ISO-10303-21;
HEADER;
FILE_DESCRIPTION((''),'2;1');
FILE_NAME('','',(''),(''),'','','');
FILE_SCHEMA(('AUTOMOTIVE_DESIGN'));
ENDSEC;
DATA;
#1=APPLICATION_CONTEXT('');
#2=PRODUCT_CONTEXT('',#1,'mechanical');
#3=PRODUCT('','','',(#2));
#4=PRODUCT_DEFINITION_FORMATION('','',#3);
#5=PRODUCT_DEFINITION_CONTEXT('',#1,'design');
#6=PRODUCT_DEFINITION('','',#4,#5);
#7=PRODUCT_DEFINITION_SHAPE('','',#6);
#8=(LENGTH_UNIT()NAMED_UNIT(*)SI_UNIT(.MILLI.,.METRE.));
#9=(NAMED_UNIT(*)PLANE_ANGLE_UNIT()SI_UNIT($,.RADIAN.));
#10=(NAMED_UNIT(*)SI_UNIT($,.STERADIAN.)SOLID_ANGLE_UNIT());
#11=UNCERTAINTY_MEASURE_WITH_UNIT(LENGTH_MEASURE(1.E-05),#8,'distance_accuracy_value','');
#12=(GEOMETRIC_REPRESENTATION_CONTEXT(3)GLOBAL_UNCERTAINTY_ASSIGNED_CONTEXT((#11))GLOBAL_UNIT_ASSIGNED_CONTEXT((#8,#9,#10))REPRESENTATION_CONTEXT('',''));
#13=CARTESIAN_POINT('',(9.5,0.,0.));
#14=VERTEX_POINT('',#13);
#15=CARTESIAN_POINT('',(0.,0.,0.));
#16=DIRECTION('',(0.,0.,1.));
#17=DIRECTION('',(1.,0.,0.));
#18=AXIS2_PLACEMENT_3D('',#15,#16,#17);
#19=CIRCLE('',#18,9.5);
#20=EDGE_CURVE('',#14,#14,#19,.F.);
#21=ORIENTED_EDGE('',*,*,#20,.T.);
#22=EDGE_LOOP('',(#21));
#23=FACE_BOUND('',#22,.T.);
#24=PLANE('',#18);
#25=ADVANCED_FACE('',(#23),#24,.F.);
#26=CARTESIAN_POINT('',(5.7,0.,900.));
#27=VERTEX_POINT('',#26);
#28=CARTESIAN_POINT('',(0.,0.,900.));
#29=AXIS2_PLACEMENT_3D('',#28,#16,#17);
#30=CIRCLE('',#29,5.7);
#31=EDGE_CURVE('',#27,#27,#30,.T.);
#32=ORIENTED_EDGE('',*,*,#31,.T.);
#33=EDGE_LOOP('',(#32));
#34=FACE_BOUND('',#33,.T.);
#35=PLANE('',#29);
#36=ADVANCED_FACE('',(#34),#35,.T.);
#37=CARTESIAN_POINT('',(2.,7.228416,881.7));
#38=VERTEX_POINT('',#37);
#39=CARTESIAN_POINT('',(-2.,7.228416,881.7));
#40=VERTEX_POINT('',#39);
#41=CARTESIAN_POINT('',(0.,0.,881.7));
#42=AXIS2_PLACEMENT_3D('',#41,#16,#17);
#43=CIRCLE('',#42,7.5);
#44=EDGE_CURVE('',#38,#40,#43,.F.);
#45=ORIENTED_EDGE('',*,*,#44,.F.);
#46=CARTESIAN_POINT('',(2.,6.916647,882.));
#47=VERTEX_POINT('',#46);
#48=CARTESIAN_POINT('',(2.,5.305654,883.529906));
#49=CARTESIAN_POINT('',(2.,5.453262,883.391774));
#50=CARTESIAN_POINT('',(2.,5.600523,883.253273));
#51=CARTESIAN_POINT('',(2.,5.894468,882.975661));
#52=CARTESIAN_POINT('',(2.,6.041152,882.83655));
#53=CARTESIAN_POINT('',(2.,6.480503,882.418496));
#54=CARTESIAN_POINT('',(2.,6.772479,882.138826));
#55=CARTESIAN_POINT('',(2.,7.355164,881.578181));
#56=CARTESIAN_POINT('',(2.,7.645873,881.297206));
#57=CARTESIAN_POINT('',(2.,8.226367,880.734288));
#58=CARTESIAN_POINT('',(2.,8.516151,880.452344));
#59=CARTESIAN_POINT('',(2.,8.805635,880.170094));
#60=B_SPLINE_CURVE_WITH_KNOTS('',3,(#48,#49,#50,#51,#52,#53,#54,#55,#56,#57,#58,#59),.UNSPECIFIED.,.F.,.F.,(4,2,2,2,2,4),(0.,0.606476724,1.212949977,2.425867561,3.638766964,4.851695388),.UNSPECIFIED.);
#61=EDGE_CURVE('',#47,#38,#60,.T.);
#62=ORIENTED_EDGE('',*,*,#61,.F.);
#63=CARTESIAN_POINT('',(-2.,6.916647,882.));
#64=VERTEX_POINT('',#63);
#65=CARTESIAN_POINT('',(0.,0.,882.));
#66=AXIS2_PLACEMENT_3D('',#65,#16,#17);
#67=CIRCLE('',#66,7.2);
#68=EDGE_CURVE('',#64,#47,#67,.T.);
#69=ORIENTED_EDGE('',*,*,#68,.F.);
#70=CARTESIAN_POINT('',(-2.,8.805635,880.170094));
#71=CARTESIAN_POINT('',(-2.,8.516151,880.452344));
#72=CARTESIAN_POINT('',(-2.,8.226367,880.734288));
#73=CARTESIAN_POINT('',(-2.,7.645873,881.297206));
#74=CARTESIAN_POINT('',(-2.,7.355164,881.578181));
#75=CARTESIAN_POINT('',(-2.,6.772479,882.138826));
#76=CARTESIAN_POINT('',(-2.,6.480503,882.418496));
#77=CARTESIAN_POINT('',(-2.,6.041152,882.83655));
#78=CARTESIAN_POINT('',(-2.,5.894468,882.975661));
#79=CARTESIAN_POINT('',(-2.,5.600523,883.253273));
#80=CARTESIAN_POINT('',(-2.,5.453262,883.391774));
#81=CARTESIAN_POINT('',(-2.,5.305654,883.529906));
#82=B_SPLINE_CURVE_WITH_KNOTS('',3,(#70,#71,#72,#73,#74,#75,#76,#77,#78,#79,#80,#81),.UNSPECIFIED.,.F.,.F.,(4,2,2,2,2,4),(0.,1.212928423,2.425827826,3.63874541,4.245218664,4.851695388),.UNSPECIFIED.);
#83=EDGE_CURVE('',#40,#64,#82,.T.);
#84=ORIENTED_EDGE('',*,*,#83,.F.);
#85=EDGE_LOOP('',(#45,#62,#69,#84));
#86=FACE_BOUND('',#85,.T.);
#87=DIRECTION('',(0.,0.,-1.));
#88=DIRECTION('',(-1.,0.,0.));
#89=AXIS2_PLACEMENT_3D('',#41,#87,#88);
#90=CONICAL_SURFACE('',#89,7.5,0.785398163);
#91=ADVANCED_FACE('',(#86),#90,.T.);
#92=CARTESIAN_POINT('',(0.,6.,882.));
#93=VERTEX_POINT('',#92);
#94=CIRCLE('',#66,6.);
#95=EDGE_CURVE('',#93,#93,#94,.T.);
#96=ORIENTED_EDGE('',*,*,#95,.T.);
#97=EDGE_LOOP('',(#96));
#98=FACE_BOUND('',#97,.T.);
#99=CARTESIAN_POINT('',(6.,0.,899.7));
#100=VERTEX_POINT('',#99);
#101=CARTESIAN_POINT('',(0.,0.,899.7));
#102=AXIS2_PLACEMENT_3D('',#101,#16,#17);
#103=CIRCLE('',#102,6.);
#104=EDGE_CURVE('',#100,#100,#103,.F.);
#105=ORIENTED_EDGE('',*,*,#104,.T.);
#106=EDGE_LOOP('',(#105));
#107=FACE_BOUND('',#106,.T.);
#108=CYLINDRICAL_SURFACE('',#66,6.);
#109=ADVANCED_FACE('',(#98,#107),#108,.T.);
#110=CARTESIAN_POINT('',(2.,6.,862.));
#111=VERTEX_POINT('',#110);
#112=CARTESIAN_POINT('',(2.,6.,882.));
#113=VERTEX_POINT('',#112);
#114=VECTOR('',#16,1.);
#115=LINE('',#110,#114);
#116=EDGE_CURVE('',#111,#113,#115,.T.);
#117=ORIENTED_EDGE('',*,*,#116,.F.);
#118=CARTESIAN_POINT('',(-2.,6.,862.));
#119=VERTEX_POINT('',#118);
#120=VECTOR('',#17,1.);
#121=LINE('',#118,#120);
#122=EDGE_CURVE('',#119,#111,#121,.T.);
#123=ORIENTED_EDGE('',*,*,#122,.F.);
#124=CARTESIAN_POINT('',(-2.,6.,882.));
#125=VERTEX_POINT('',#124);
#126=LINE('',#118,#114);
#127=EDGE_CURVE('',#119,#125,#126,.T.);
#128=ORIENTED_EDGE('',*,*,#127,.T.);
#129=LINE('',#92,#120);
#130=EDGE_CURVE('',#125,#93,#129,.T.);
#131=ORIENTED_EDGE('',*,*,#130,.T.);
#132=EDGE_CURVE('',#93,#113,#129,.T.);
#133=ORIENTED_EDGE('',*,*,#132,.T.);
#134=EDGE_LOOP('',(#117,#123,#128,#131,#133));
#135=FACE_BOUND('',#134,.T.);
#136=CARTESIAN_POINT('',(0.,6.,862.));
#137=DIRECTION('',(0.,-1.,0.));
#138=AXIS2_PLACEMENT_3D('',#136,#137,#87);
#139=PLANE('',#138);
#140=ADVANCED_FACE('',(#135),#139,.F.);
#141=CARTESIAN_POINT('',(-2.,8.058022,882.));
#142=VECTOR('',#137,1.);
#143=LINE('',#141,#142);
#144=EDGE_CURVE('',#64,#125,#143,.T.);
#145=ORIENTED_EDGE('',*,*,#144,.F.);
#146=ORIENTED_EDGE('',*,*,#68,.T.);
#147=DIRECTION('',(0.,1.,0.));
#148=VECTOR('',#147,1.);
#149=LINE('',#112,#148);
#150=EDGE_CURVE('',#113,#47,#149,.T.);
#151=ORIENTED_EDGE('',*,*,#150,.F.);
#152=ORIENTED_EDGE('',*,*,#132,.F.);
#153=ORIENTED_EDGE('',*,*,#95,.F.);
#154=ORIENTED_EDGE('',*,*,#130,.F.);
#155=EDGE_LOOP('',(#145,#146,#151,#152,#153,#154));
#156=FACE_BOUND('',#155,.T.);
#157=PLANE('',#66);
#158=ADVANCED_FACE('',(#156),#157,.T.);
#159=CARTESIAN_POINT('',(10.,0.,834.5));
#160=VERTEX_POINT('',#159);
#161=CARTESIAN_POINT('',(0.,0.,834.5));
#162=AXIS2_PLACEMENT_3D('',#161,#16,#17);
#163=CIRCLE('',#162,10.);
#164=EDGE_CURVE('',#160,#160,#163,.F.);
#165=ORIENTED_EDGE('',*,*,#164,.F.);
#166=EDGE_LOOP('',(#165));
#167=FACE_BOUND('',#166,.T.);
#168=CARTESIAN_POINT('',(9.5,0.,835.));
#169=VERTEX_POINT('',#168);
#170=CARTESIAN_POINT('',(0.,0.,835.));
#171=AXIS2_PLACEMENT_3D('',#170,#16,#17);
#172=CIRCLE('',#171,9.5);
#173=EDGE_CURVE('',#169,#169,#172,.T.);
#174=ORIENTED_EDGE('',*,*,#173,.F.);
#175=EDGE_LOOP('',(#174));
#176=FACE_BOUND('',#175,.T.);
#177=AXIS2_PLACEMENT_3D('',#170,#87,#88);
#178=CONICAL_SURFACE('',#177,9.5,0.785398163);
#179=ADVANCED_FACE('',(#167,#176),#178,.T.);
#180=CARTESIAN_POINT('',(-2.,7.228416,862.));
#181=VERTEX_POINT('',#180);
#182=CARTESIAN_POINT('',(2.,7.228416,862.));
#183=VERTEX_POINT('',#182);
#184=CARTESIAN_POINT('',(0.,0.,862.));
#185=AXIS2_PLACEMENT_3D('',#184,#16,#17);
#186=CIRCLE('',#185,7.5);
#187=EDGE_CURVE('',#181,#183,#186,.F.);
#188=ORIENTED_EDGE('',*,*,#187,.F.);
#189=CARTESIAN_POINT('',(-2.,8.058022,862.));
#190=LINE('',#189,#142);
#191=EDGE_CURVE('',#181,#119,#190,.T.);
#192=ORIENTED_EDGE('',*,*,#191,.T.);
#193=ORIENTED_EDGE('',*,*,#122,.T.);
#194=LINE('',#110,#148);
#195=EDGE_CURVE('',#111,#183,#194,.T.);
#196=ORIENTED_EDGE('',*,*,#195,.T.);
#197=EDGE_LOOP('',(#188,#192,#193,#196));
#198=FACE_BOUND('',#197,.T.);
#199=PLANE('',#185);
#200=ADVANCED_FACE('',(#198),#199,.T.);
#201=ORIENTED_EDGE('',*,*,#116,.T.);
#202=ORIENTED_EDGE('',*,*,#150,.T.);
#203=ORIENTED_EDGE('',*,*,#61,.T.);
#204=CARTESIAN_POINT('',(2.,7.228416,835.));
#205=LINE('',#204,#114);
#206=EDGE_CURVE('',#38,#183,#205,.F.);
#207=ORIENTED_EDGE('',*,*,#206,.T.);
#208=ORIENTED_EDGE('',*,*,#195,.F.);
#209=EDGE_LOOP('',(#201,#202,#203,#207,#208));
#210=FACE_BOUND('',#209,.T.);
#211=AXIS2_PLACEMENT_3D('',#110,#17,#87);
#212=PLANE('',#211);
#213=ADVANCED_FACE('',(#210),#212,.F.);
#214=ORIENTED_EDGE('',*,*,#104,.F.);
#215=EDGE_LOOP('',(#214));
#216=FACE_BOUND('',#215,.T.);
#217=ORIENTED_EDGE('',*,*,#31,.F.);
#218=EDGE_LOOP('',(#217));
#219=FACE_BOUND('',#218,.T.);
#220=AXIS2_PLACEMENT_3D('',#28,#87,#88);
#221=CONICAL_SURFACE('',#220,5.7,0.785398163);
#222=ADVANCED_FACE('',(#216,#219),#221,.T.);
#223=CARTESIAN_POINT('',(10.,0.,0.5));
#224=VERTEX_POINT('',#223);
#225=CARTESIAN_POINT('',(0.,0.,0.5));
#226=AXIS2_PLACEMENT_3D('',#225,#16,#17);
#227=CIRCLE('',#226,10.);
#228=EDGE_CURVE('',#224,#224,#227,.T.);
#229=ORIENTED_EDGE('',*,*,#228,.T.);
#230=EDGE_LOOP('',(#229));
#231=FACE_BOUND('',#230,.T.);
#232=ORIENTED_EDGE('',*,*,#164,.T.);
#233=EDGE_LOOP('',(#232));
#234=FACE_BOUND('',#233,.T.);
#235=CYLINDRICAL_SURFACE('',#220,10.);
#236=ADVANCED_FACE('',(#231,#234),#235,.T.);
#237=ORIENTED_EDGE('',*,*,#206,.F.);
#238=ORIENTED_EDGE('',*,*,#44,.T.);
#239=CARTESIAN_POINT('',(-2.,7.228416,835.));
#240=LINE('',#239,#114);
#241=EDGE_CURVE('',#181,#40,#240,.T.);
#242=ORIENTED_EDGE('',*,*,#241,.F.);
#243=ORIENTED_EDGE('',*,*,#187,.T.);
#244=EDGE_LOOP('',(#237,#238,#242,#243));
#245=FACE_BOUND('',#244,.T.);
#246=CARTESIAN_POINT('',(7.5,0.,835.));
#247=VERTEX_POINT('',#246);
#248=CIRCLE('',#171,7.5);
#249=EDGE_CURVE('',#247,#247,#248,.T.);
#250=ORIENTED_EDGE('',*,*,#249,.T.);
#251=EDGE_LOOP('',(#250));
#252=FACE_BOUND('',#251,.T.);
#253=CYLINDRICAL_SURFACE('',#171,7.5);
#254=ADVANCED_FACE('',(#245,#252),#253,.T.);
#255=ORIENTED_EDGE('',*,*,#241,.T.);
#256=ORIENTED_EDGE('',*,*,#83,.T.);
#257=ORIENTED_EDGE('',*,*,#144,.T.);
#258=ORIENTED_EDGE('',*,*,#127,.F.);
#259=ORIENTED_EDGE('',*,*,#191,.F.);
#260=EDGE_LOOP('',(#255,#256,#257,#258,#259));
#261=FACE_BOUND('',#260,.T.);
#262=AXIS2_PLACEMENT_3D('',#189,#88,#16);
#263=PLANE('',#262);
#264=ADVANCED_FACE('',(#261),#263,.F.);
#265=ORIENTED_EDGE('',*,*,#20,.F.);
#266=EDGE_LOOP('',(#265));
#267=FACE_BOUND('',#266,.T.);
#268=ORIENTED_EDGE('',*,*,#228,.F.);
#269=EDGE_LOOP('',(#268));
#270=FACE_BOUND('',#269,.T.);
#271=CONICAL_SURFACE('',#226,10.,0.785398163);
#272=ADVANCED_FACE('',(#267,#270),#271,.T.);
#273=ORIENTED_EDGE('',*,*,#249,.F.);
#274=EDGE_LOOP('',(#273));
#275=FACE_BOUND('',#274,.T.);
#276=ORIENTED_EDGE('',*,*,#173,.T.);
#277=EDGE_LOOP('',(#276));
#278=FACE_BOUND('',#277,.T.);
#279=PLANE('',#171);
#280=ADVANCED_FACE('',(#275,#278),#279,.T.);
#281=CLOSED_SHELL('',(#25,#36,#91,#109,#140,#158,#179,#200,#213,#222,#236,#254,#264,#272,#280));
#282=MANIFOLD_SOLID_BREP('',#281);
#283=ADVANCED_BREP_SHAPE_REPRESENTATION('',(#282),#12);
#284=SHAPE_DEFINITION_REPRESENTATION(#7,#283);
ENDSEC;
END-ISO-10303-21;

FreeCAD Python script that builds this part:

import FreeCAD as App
import Part
import Sketcher


def edges_at(feature, points):
    """Names of the edges that pass closest to the given points."""
    edges = feature.Shape.Edges
    near = lambda p: min(range(len(edges)), key=lambda i: edges[i].distToShape(Part.Vertex(*p))[0])
    return sorted({f"Edge{near(p) + 1}" for p in points})

doc = App.newDocument("Part")
body = doc.addObject("PartDesign::Body", "Body")

# Sketch on XY plane
sketch1 = doc.addObject("Sketcher::SketchObject", "Sketch")
body.addObject(sketch1)
sketch1.AttachmentSupport = (doc.XY_Plane, [""])
sketch1.MapMode = "FlatFace"
sketch1.addGeometry(Part.Circle(App.Vector(0, 0, 0), App.Vector(0, 0, 1), 10), False)
sketch1.addConstraint([
    Sketcher.Constraint("Coincident", 0, 3, -1, 1),
    Sketcher.Constraint("Diameter", 0, 20.0),
])
pad1 = doc.addObject("PartDesign::Pad", "Pad")
body.addObject(pad1)
pad1.Profile = sketch1
pad1.Length = 900

# Sketch on XY plane
sketch2 = doc.addObject("Sketcher::SketchObject", "Sketch001")
body.addObject(sketch2)
sketch2.AttachmentSupport = (doc.XY_Plane, [""])
sketch2.MapMode = "FlatFace"
sketch2.AttachmentOffset = App.Placement(App.Vector(0, 0, 900), App.Rotation())
sketch2.addGeometry([
    Part.Circle(App.Vector(0, 0, 0), App.Vector(0, 0, 1), 10),
    Part.Circle(App.Vector(0, 0, 0), App.Vector(0, 0, 1), 8),
], False)
sketch2.addConstraint([
    Sketcher.Constraint("Coincident", 0, 3, -1, 1),
    Sketcher.Constraint("Coincident", 1, 3, -1, 1),
    Sketcher.Constraint("Diameter", 0, 20.0),
    Sketcher.Constraint("Diameter", 1, 15.0),
])
pocket1 = doc.addObject("PartDesign::Pocket", "Pocket")
body.addObject(pocket1)
pocket1.Profile = sketch2
pocket1.Length = 65

# Sketch on XY plane
sketch3 = doc.addObject("Sketcher::SketchObject", "Sketch002")
body.addObject(sketch3)
sketch3.AttachmentSupport = (doc.XY_Plane, [""])
sketch3.MapMode = "FlatFace"
sketch3.AttachmentOffset = App.Placement(App.Vector(0, 0, 900), App.Rotation())
sketch3.addGeometry([
    Part.Circle(App.Vector(0, 0, 0), App.Vector(0, 0, 1), 10),
    Part.Circle(App.Vector(0, 0, 0), App.Vector(0, 0, 1), 6),
], False)
sketch3.addConstraint([
    Sketcher.Constraint("Coincident", 0, 3, -1, 1),
    Sketcher.Constraint("Coincident", 1, 3, -1, 1),
    Sketcher.Constraint("Diameter", 0, 20.0),
    Sketcher.Constraint("Diameter", 1, 12.0),
])
pocket2 = doc.addObject("PartDesign::Pocket", "Pocket001")
body.addObject(pocket2)
pocket2.Profile = sketch3
pocket2.Length = 18
doc.recompute()

chamfer = doc.addObject("PartDesign::Chamfer", "Chamfer")
body.addObject(chamfer)
chamfer.Base = (pocket2, edges_at(pocket2, [(-10, 0, 835)]))
chamfer.Size = 0.5
doc.recompute()

chamfer2 = doc.addObject("PartDesign::Chamfer", "Chamfer001")
body.addObject(chamfer2)
chamfer2.Base = (chamfer, edges_at(chamfer, [(-7.5, 0, 882), (-6, 0, 900)]))
chamfer2.Size = 0.3
doc.recompute()

chamfer3 = doc.addObject("PartDesign::Chamfer", "Chamfer002")
body.addObject(chamfer3)
chamfer3.Base = (chamfer2, edges_at(chamfer2, [(-10, 0, 0)]))
chamfer3.Size = 0.5

# Sketch on XY plane
sketch4 = doc.addObject("Sketcher::SketchObject", "Sketch003")
body.addObject(sketch4)
sketch4.AttachmentSupport = (doc.XY_Plane, [""])
sketch4.MapMode = "FlatFace"
sketch4.AttachmentOffset = App.Placement(App.Vector(0, 0, 882), App.Rotation())
sketch4.addGeometry([
    Part.LineSegment(App.Vector(2, 6, 0), App.Vector(2, 8.1, 0)),
    Part.LineSegment(App.Vector(2, 8.1, 0), App.Vector(-2, 8.1, 0)),
    Part.LineSegment(App.Vector(-2, 8.1, 0), App.Vector(-2, 6, 0)),
    Part.LineSegment(App.Vector(-2, 6, 0), App.Vector(2, 6, 0)),
], False)
sketch4.addConstraint([
    Sketcher.Constraint("Coincident", 0, 2, 1, 1),
    Sketcher.Constraint("Coincident", 1, 2, 2, 1),
    Sketcher.Constraint("Coincident", 2, 2, 3, 1),
    Sketcher.Constraint("Coincident", 3, 2, 0, 1),
    Sketcher.Constraint("Vertical", 0),
    Sketcher.Constraint("Horizontal", 1),
    Sketcher.Constraint("Vertical", 2),
    Sketcher.Constraint("Horizontal", 3),
    Sketcher.Constraint("DistanceX", 1, 2, 1, 1, 4.0),
    Sketcher.Constraint("DistanceX", -1, 1, 0, 2, 2.0),
    Sketcher.Constraint("DistanceY", -1, 1, 2, 2, 6.0),
    Sketcher.Constraint("DistanceY", 0, 1, 0, 2, 2.058022),
])
pocket3 = doc.addObject("PartDesign::Pocket", "Pocket002")
body.addObject(pocket3)
pocket3.Profile = sketch4
pocket3.Length = 20

doc.recompute()
